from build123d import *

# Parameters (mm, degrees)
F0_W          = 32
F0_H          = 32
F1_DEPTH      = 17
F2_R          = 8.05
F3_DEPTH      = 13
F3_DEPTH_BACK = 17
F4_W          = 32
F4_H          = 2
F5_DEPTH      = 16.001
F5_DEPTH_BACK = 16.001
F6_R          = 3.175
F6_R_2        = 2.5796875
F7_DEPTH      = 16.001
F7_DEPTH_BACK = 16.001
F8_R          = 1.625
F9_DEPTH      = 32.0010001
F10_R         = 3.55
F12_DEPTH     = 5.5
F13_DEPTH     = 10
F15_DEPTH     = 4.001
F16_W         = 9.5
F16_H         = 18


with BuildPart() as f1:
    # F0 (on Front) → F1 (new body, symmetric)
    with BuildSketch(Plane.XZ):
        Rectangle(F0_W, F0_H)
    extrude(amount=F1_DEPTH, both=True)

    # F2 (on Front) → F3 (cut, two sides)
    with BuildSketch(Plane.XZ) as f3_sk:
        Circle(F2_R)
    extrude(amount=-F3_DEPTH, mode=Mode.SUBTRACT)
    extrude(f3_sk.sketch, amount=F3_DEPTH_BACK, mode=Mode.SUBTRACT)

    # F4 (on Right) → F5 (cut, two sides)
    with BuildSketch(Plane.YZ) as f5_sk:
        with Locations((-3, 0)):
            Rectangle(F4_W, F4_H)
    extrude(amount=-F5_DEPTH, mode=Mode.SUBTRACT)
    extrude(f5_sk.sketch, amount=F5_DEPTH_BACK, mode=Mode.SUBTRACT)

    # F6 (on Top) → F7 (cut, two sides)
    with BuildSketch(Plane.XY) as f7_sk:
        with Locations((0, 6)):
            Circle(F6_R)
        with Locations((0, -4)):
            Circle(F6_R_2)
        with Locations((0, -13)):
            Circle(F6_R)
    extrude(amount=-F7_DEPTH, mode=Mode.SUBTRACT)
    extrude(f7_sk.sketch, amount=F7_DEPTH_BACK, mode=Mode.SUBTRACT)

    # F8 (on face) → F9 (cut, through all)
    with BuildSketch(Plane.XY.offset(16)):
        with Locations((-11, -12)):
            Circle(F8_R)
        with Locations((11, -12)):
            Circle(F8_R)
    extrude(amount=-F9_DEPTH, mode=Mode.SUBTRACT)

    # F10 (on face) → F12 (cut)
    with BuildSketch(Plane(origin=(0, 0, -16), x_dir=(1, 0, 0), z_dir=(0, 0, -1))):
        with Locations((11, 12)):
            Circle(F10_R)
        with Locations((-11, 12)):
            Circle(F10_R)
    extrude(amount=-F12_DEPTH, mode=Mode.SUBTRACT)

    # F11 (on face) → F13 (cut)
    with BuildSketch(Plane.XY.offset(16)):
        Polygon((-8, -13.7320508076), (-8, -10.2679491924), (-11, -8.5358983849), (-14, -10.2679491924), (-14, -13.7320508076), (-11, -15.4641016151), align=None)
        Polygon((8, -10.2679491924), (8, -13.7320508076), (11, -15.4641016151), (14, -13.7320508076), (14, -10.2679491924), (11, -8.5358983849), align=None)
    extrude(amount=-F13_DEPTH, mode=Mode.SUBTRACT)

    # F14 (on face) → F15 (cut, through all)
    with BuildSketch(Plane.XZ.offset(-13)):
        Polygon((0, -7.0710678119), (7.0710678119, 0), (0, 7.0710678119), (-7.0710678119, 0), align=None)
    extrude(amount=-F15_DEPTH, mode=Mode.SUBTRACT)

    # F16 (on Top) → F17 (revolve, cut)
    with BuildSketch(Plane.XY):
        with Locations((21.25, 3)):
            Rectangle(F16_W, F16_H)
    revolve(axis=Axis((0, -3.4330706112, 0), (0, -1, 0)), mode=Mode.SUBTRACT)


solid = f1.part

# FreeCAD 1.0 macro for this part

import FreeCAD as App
import Part
import Sketcher
from FreeCAD import Vector
Q = App.Units.Quantity

doc = App.newDocument("Part")
params = doc.addObject("Spreadsheet::Sheet", "Params")
for row, (alias, value) in enumerate([
    ("sketch1_width", "32 mm"),
    ("pad1_length", "34 mm"),
    ("sketch2_diameter", "16.1 mm"),
    ("pocket1_length", "13 mm"),
    ("pocket1_length2", "17 mm"),
    ("sketch3_width", "32 mm"),
    ("sketch3_height", "2 mm"),
    ("sketch4_diameter", "6.35 mm"),
    ("sketch5_diameter", "3.25 mm"),
    ("sketch6_diameter", "7.1 mm"),
    ("pocket5_length", "5.5 mm"),
    ("pocket6_length", "10 mm"),
    ("sketch8_length", "10 mm"),
    ("sketch9_height", "18 mm"),
    ("sketch9_width", "9.5 mm"),
    ("groove_angle", "360 deg"),
], start=1):
    params.set(f"A{row}", alias)
    params.set(f"B{row}", "=" + value)
    params.setAlias(f"B{row}", alias)

body = doc.addObject("PartDesign::Body", "Body")

# Sketch on XZ plane
sketch1 = body.newObject("Sketcher::SketchObject", "Sketch")
sketch1.AttachmentSupport = (doc.getObject("XZ_Plane"), [""])
sketch1.MapMode = "FlatFace"
sketch1.addGeometry([
    Part.LineSegment(Vector(-16, 16, 0), Vector(-16, -16, 0)),
    Part.LineSegment(Vector(-16, -16, 0), Vector(16, -16, 0)),
    Part.LineSegment(Vector(16, -16, 0), Vector(16, 16, 0)),
    Part.LineSegment(Vector(16, 16, 0), Vector(-16, 16, 0)),
], False)
sketch1.addConstraint([
    Sketcher.Constraint("Coincident", 0, 2, 1, 1),
    Sketcher.Constraint("Coincident", 1, 2, 2, 1),
    Sketcher.Constraint("Coincident", 2, 2, 3, 1),
    Sketcher.Constraint("Coincident", 3, 2, 0, 1),
    Sketcher.Constraint("Vertical", 0),
    Sketcher.Constraint("Horizontal", 1),
    Sketcher.Constraint("Vertical", 2),
    Sketcher.Constraint("Horizontal", 3),
    Sketcher.Constraint("Symmetric", 0, 2, 2, 2, -1, 1),
    Sketcher.Constraint("Equal", 3, 0),
    Sketcher.Constraint("DistanceX", 1, 1, 1, 2, Q("32 mm")),
])
sketch1.setExpression("Constraints[10]", "Params.sketch1_width")
pad1 = body.newObject("PartDesign::Pad", "Pad")
pad1.Profile = sketch1
pad1.setExpression("Length", "Params.pad1_length")
pad1.Midplane = True

# Sketch on XZ plane
sketch2 = body.newObject("Sketcher::SketchObject", "Sketch001")
sketch2.AttachmentSupport = (doc.getObject("XZ_Plane"), [""])
sketch2.MapMode = "FlatFace"
sketch2.addGeometry(Part.Circle(Vector(0, 0, 0), Vector(0, 0, 1), 8), False)
sketch2.addConstraint([
    Sketcher.Constraint("Coincident", 0, 3, -1, 1),
    Sketcher.Constraint("Diameter", 0, Q("16.1 mm")),
])
sketch2.setExpression("Constraints[1]", "Params.sketch2_diameter")
pocket1 = body.newObject("PartDesign::Pocket", "Pocket")
pocket1.Profile = sketch2
pocket1.Type = "TwoLengths"
pocket1.setExpression("Length", "Params.pocket1_length")
pocket1.setExpression("Length2", "Params.pocket1_length2")

# Sketch on YZ plane
sketch3 = body.newObject("Sketcher::SketchObject", "Sketch002")
sketch3.AttachmentSupport = (doc.getObject("YZ_Plane"), [""])
sketch3.MapMode = "FlatFace"
sketch3.addGeometry([
    Part.LineSegment(Vector(-19, 1, 0), Vector(-19, -1, 0)),
    Part.LineSegment(Vector(-19, -1, 0), Vector(13, -1, 0)),
    Part.LineSegment(Vector(13, -1, 0), Vector(13, 1, 0)),
    Part.LineSegment(Vector(13, 1, 0), Vector(-19, 1, 0)),
], False)
sketch3.addConstraint([
    Sketcher.Constraint("Coincident", 0, 2, 1, 1),
    Sketcher.Constraint("Coincident", 1, 2, 2, 1),
    Sketcher.Constraint("Coincident", 2, 2, 3, 1),
    Sketcher.Constraint("Coincident", 3, 2, 0, 1),
    Sketcher.Constraint("Vertical", 0),
    Sketcher.Constraint("Horizontal", 1),
    Sketcher.Constraint("Vertical", 2),
    Sketcher.Constraint("Horizontal", 3),
    Sketcher.Constraint("DistanceX", 1, 1, 1, 2, Q("32 mm")),
    Sketcher.Constraint("DistanceY", 0, 2, 0, 1, Q("2 mm")),
    Sketcher.Constraint("DistanceX", 0, 2, -1, 1, Q("19 mm")),
    Sketcher.Constraint("DistanceY", 0, 2, -1, 1, Q("1 mm")),
])
sketch3.setExpression("Constraints[8]", "Params.sketch3_width")
sketch3.setExpression("Constraints[9]", "Params.sketch3_height")
pocket2 = body.newObject("PartDesign::Pocket", "Pocket001")
pocket2.Profile = sketch3
pocket2.Type = "ThroughAll"
pocket2.Midplane = True

# Sketch on XY plane
sketch4 = body.newObject("Sketcher::SketchObject", "Sketch003")
sketch4.AttachmentSupport = (doc.getObject("XY_Plane"), [""])
sketch4.MapMode = "FlatFace"
sketch4.addGeometry([
    Part.Circle(Vector(0, 6, 0), Vector(0, 0, 1), 3.2),
    Part.Circle(Vector(0, -4, 0), Vector(0, 0, 1), 2.6),
    Part.Circle(Vector(0, -13, 0), Vector(0, 0, 1), 3.2),
], False)
sketch4.addConstraint([
    Sketcher.Constraint("Equal", 0, 2),
    Sketcher.Constraint("PointOnObject", 0, 3, -2),
    Sketcher.Constraint("PointOnObject", 1, 3, -2),
    Sketcher.Constraint("PointOnObject", 2, 3, -2),
    Sketcher.Constraint("Diameter", 0, Q("6.35 mm")),
    Sketcher.Constraint("DistanceY", -1, 1, 0, 3, Q("6 mm")),
    Sketcher.Constraint("DistanceY", 1, 3, -1, 1, Q("4 mm")),
    Sketcher.Constraint("DistanceY", 2, 3, -1, 1, Q("13 mm")),
    Sketcher.Constraint("Diameter", 1, Q("5.159375 mm")),
])
sketch4.setExpression("Constraints[4]", "Params.sketch4_diameter")
pocket3 = body.newObject("PartDesign::Pocket", "Pocket002")
pocket3.Profile = sketch4
pocket3.Type = "ThroughAll"
pocket3.Midplane = True

# Sketch on XY plane
sketch5 = body.newObject("Sketcher::SketchObject", "Sketch004")
sketch5.AttachmentSupport = (doc.getObject("XY_Plane"), [""])
sketch5.MapMode = "FlatFace"
sketch5.AttachmentOffset = App.Placement(Vector(0, 0, 16), App.Rotation())
sketch5.addGeometry([
    Part.Circle(Vector(-11, -12, 0), Vector(0, 0, 1), 1.6),
    Part.Circle(Vector(11, -12, 0), Vector(0, 0, 1), 1.6),
], False)
sketch5.addConstraint([
    Sketcher.Constraint("Equal", 0, 1),
    Sketcher.Constraint("Symmetric", 0, 3, 1, 3, -2),
    Sketcher.Constraint("Diameter", 0, Q("3.25 mm")),
    Sketcher.Constraint("DistanceX", 0, 3, -1, 1, Q("11 mm")),
    Sketcher.Constraint("DistanceY", 0, 3, -1, 1, Q("12 mm")),
])
sketch5.setExpression("Constraints[2]", "Params.sketch5_diameter")
pocket4 = body.newObject("PartDesign::Pocket", "Pocket003")
pocket4.Profile = sketch5
pocket4.Type = "ThroughAll"

# Sketch on XY plane
sketch6 = body.newObject("Sketcher::SketchObject", "Sketch005")
sketch6.AttachmentSupport = (doc.getObject("XY_Plane"), [""])
sketch6.MapMode = "FlatFace"
sketch6.AttachmentOffset = App.Placement(Vector(0, 0, -16), App.Rotation())
sketch6.addGeometry([
    Part.Circle(Vector(11, -12, 0), Vector(0, 0, 1), 3.5),
    Part.Circle(Vector(-11, -12, 0), Vector(0, 0, 1), 3.5),
], False)
sketch6.addConstraint([
    Sketcher.Constraint("Equal", 0, 1),
    Sketcher.Constraint("Symmetric", 0, 3, 1, 3, -2),
    Sketcher.Constraint("Diameter", 0, Q("7.1 mm")),
    Sketcher.Constraint("DistanceX", -1, 1, 0, 3, Q("11 mm")),
    Sketcher.Constraint("DistanceY", 0, 3, -1, 1, Q("12 mm")),
])
sketch6.setExpression("Constraints[2]", "Params.sketch6_diameter")
pocket5 = body.newObject("PartDesign::Pocket", "Pocket004")
pocket5.Profile = sketch6
pocket5.setExpression("Length", "Params.pocket5_length")
pocket5.Reversed = True

# Sketch on XY plane
sketch7 = body.newObject("Sketcher::SketchObject", "Sketch006")
sketch7.AttachmentSupport = (doc.getObject("XY_Plane"), [""])
sketch7.MapMode = "FlatFace"
sketch7.AttachmentOffset = App.Placement(Vector(0, 0, 16), App.Rotation())
sketch7.addGeometry([
    Part.LineSegment(Vector(-8, -13.7, 0), Vector(-8, -10.3, 0)),  # 0
    Part.LineSegment(Vector(-8, -10.3, 0), Vector(-11, -8.5, 0)),  # 1
    Part.LineSegment(Vector(-11, -8.5, 0), Vector(-14, -10.3, 0)),  # 2
    Part.LineSegment(Vector(-14, -10.3, 0), Vector(-14, -13.7, 0)),  # 3
    Part.LineSegment(Vector(-14, -13.7, 0), Vector(-11, -15.5, 0)),  # 4
    Part.LineSegment(Vector(-11, -15.5, 0), Vector(-8, -13.7, 0)),  # 5
    Part.LineSegment(Vector(8, -10.3, 0), Vector(8, -13.7, 0)),  # 6
    Part.LineSegment(Vector(8, -13.7, 0), Vector(11, -15.5, 0)),  # 7
    Part.LineSegment(Vector(11, -15.5, 0), Vector(14, -13.7, 0)),  # 8
    Part.LineSegment(Vector(14, -13.7, 0), Vector(14, -10.3, 0)),  # 9
    Part.LineSegment(Vector(14, -10.3, 0), Vector(11, -8.5, 0)),  # 10
    Part.LineSegment(Vector(11, -8.5, 0), Vector(8, -10.3, 0)),  # 11
], False)
sketch7.addConstraint([
    Sketcher.Constraint("Coincident", 0, 2, 1, 1),
    Sketcher.Constraint("Coincident", 1, 2, 2, 1),
    Sketcher.Constraint("Coincident", 2, 2, 3, 1),
    Sketcher.Constraint("Coincident", 3, 2, 4, 1),
    Sketcher.Constraint("Coincident", 4, 2, 5, 1),
    Sketcher.Constraint("Coincident", 5, 2, 0, 1),
    Sketcher.Constraint("Coincident", 6, 2, 7, 1),
    Sketcher.Constraint("Coincident", 7, 2, 8, 1),
    Sketcher.Constraint("Coincident", 8, 2, 9, 1),
    Sketcher.Constraint("Coincident", 9, 2, 10, 1),
    Sketcher.Constraint("Coincident", 10, 2, 11, 1),
    Sketcher.Constraint("Coincident", 11, 2, 6, 1),
    Sketcher.Constraint("Vertical", 0),
    Sketcher.Constraint("Vertical", 3),
    Sketcher.Constraint("Vertical", 6),
    Sketcher.Constraint("Vertical", 9),
    Sketcher.Constraint("Symmetric", 5, 2, 6, 2, -2),
    Sketcher.Constraint("Symmetric", 4, 2, 7, 2, -2),
    Sketcher.Constraint("Symmetric", 3, 2, 8, 2, -2),
    Sketcher.Constraint("Symmetric", 1, 2, 10, 2, -2),
    Sketcher.Constraint("Parallel", 1, 4),
    Sketcher.Constraint("Parallel", 2, 5),
    Sketcher.Constraint("Parallel", 4, 7),
    Sketcher.Constraint("Parallel", 7, 10),
    Sketcher.Constraint("Parallel", 8, 11),
    Sketcher.Constraint("Horizontal", 0, 2, 2, 2),
    Sketcher.Constraint("Horizontal", 3, 2, 5, 2),
    Sketcher.Constraint("Angle", 1, Q("150 deg")),
    Sketcher.Constraint("DistanceX", 0, 2, -1, 1, Q("8 mm")),
    Sketcher.Constraint("DistanceX", 1, 2, -1, 1, Q("11 mm")),
    Sketcher.Constraint("DistanceY", 0, 1, 0, 2, Q("3.464102 mm")),
    Sketcher.Constraint("DistanceY", 1, 2, -1, 1, Q("8.535898 mm")),
])
pocket6 = body.newObject("PartDesign::Pocket", "Pocket005")
pocket6.Profile = sketch7
pocket6.setExpression("Length", "Params.pocket6_length")

# Sketch on XZ plane
sketch8 = body.newObject("Sketcher::SketchObject", "Sketch007")
sketch8.AttachmentSupport = (doc.getObject("XZ_Plane"), [""])
sketch8.MapMode = "FlatFace"
sketch8.AttachmentOffset = App.Placement(Vector(0, 0, -13), App.Rotation())
sketch8.addGeometry([
    Part.LineSegment(Vector(0, -7, 0), Vector(7, 0, 0)),
    Part.LineSegment(Vector(7, 0, 0), Vector(0, 7, 0)),
    Part.LineSegment(Vector(0, 7, 0), Vector(-7, 0, 0)),
    Part.LineSegment(Vector(-7, 0, 0), Vector(0, -7, 0)),
], False)
sketch8.addConstraint([
    Sketcher.Constraint("Coincident", 0, 2, 1, 1),
    Sketcher.Constraint("Coincident", 1, 2, 2, 1),
    Sketcher.Constraint("Coincident", 2, 2, 3, 1),
    Sketcher.Constraint("Coincident", 3, 2, 0, 1),
    Sketcher.Constraint("Symmetric", 0, 2, 2, 2, -1, 1),
    Sketcher.Constraint("Symmetric", 1, 2, 3, 2, -1, 1),
    Sketcher.Constraint("PointOnObject", 0, 2, -1),
    Sketcher.Constraint("PointOnObject", 1, 2, -2),
    Sketcher.Constraint("Perpendicular", 0, 1),
    Sketcher.Constraint("Distance", 0, Q("10 mm")),
])
sketch8.setExpression("Constraints[9]", "Params.sketch8_length")
pocket7 = body.newObject("PartDesign::Pocket", "Pocket006")
pocket7.Profile = sketch8
pocket7.Type = "ThroughAll"

# Sketch on XY plane
sketch9 = body.newObject("Sketcher::SketchObject", "Sketch008")
sketch9.AttachmentSupport = (doc.getObject("XY_Plane"), [""])
sketch9.MapMode = "FlatFace"
sketch9.addGeometry([
    Part.LineSegment(Vector(16, 12, 0), Vector(16, -6, 0)),
    Part.LineSegment(Vector(16, -6, 0), Vector(26, -6, 0)),
    Part.LineSegment(Vector(26, -6, 0), Vector(26, 12, 0)),
    Part.LineSegment(Vector(26, 12, 0), Vector(16, 12, 0)),
], False)
sketch9.addConstraint([
    Sketcher.Constraint("Coincident", 0, 2, 1, 1),
    Sketcher.Constraint("Coincident", 1, 2, 2, 1),
    Sketcher.Constraint("Coincident", 2, 2, 3, 1),
    Sketcher.Constraint("Coincident", 3, 2, 0, 1),
    Sketcher.Constraint("Vertical", 0),
    Sketcher.Constraint("Horizontal", 1),
    Sketcher.Constraint("Vertical", 2),
    Sketcher.Constraint("Horizontal", 3),
    Sketcher.Constraint("DistanceY", 0, 2, 0, 1, Q("18 mm")),
    Sketcher.Constraint("DistanceX", 1, 1, 1, 2, Q("9.5 mm")),
    Sketcher.Constraint("DistanceY", 0, 2, -1, 1, Q("6 mm")),
    Sketcher.Constraint("DistanceX", -1, 1, 1, 2, Q("26 mm")),
])
sketch9.setExpression("Constraints[8]", "Params.sketch9_height")
sketch9.setExpression("Constraints[9]", "Params.sketch9_width")
groove = body.newObject("PartDesign::Groove", "Groove")
groove.Profile = sketch9
groove.ReferenceAxis = (sketch9, ["V_Axis"])
groove.setExpression("Angle", "Params.groove_angle")

doc.recompute()
